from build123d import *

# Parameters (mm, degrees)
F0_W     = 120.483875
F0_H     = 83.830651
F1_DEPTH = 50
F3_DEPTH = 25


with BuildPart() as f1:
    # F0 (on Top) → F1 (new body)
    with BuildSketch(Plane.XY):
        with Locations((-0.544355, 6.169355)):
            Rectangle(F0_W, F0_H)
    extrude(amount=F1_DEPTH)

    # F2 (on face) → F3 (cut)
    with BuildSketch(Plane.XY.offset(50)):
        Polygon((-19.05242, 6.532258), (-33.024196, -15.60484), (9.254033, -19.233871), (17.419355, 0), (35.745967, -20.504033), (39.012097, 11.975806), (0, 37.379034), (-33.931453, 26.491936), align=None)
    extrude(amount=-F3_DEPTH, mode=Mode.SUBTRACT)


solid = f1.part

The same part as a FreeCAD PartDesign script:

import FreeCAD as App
import Part
import Sketcher
Q = App.Units.Quantity

doc = App.newDocument("Part")
body = doc.addObject("PartDesign::Body", "Body")

# Sketch on XY plane
sketch1 = body.newObject("Sketcher::SketchObject", "Sketch")
sketch1.AttachmentSupport = (doc.getObject("XY_Plane"), [""])
sketch1.MapMode = "FlatFace"
sketch1.addGeometry([
    Part.LineSegment(App.Vector(-61, 48, 0), App.Vector(-61, -36, 0)),
    Part.LineSegment(App.Vector(-61, -36, 0), App.Vector(60, -36, 0)),
    Part.LineSegment(App.Vector(60, -36, 0), App.Vector(60, 48, 0)),
    Part.LineSegment(App.Vector(60, 48, 0), App.Vector(-61, 48, 0)),
], False)
sketch1.addConstraint([
    Sketcher.Constraint("Coincident", 0, 2, 1, 1),
    Sketcher.Constraint("Coincident", 1, 2, 2, 1),
    Sketcher.Constraint("Coincident", 2, 2, 3, 1),
    Sketcher.Constraint("Coincident", 3, 2, 0, 1),
    Sketcher.Constraint("Vertical", 0),
    Sketcher.Constraint("Horizontal", 1),
    Sketcher.Constraint("Vertical", 2),
    Sketcher.Constraint("Horizontal", 3),
    Sketcher.Constraint("DistanceY", 0, 2, 0, 1, Q("83.830651 mm")),
    Sketcher.Constraint("DistanceX", 1, 1, 1, 2, Q("120.483875 mm")),
    Sketcher.Constraint("DistanceY", 0, 2, -1, 1, Q("35.74597 mm")),
    Sketcher.Constraint("DistanceX", 0, 2, -1, 1, Q("60.786293 mm")),
])
pad1 = body.newObject("PartDesign::Pad", "Pad")
pad1.Profile = sketch1
pad1.Length = 50

# Sketch on XY plane
sketch2 = body.newObject("Sketcher::SketchObject", "Sketch001")
sketch2.AttachmentSupport = (doc.getObject("XY_Plane"), [""])
sketch2.MapMode = "FlatFace"
sketch2.AttachmentOffset = App.Placement(App.Vector(0, 0, 50), App.Rotation())
sketch2.addGeometry([
    Part.LineSegment(App.Vector(-19, 7, 0), App.Vector(-33, -16, 0)),  # 0
    Part.LineSegment(App.Vector(-33, -16, 0), App.Vector(9, -19, 0)),  # 1
    Part.LineSegment(App.Vector(9, -19, 0), App.Vector(17, 0, 0)),  # 2
    Part.LineSegment(App.Vector(17, 0, 0), App.Vector(36, -21, 0)),  # 3
    Part.LineSegment(App.Vector(36, -21, 0), App.Vector(39, 12, 0)),  # 4
    Part.LineSegment(App.Vector(39, 12, 0), App.Vector(0, 37, 0)),  # 5
    Part.LineSegment(App.Vector(0, 37, 0), App.Vector(-34, 26, 0)),  # 6
    Part.LineSegment(App.Vector(-34, 26, 0), App.Vector(-19, 7, 0)),  # 7
], False)
sketch2.addConstraint([
    Sketcher.Constraint("Coincident", 0, 2, 1, 1),
    Sketcher.Constraint("Coincident", 1, 2, 2, 1),
    Sketcher.Constraint("Coincident", 2, 2, 3, 1),
    Sketcher.Constraint("Coincident", 3, 2, 4, 1),
    Sketcher.Constraint("Coincident", 4, 2, 5, 1),
    Sketcher.Constraint("Coincident", 5, 2, 6, 1),
    Sketcher.Constraint("Coincident", 6, 2, 7, 1),
    Sketcher.Constraint("Coincident", 7, 2, 0, 1),
    Sketcher.Constraint("PointOnObject", 2, 2, -1),
    Sketcher.Constraint("PointOnObject", 5, 2, -2),
    Sketcher.Constraint("Distance", 6, Q("35.635269 mm")),
    Sketcher.Constraint("Distance", 7, Q("24.895268 mm")),
    Sketcher.Constraint("DistanceY", 0, 2, -1, 1, Q("15.60484 mm")),
    Sketcher.Constraint("DistanceY", 1, 2, -1, 1, Q("19.233871 mm")),
    Sketcher.Constraint("DistanceX", 7, 2, -1, 1, Q("19.05242 mm")),
    Sketcher.Constraint("DistanceX", 0, 2, 1, 2, Q("42.278229 mm")),
    Sketcher.Constraint("DistanceX", 0, 2, 2, 2, Q("50.443551 mm")),
    Sketcher.Constraint("DistanceY", 3, 2, 1, 2, Q("1.270162 mm")),
    Sketcher.Constraint("DistanceX", 2, 2, 4, 2, Q("21.592742 mm")),
    Sketcher.Constraint("DistanceX", 3, 2, 4, 2, Q("3.26613 mm")),
    Sketcher.Constraint("DistanceY", 3, 2, 4, 2, Q("32.479839 mm")),
    Sketcher.Constraint("DistanceX", 6, 2, 4, 2, Q("72.94355 mm")),
    Sketcher.Constraint("DistanceY", 4, 2, 6, 2, Q("14.51613 mm")),
    Sketcher.Constraint("DistanceY", 7, 2, 6, 2, Q("19.959678 mm")),
])
pocket1 = body.newObject("PartDesign::Pocket", "Pocket")
pocket1.Profile = sketch2
pocket1.Length = 25

doc.recompute()
